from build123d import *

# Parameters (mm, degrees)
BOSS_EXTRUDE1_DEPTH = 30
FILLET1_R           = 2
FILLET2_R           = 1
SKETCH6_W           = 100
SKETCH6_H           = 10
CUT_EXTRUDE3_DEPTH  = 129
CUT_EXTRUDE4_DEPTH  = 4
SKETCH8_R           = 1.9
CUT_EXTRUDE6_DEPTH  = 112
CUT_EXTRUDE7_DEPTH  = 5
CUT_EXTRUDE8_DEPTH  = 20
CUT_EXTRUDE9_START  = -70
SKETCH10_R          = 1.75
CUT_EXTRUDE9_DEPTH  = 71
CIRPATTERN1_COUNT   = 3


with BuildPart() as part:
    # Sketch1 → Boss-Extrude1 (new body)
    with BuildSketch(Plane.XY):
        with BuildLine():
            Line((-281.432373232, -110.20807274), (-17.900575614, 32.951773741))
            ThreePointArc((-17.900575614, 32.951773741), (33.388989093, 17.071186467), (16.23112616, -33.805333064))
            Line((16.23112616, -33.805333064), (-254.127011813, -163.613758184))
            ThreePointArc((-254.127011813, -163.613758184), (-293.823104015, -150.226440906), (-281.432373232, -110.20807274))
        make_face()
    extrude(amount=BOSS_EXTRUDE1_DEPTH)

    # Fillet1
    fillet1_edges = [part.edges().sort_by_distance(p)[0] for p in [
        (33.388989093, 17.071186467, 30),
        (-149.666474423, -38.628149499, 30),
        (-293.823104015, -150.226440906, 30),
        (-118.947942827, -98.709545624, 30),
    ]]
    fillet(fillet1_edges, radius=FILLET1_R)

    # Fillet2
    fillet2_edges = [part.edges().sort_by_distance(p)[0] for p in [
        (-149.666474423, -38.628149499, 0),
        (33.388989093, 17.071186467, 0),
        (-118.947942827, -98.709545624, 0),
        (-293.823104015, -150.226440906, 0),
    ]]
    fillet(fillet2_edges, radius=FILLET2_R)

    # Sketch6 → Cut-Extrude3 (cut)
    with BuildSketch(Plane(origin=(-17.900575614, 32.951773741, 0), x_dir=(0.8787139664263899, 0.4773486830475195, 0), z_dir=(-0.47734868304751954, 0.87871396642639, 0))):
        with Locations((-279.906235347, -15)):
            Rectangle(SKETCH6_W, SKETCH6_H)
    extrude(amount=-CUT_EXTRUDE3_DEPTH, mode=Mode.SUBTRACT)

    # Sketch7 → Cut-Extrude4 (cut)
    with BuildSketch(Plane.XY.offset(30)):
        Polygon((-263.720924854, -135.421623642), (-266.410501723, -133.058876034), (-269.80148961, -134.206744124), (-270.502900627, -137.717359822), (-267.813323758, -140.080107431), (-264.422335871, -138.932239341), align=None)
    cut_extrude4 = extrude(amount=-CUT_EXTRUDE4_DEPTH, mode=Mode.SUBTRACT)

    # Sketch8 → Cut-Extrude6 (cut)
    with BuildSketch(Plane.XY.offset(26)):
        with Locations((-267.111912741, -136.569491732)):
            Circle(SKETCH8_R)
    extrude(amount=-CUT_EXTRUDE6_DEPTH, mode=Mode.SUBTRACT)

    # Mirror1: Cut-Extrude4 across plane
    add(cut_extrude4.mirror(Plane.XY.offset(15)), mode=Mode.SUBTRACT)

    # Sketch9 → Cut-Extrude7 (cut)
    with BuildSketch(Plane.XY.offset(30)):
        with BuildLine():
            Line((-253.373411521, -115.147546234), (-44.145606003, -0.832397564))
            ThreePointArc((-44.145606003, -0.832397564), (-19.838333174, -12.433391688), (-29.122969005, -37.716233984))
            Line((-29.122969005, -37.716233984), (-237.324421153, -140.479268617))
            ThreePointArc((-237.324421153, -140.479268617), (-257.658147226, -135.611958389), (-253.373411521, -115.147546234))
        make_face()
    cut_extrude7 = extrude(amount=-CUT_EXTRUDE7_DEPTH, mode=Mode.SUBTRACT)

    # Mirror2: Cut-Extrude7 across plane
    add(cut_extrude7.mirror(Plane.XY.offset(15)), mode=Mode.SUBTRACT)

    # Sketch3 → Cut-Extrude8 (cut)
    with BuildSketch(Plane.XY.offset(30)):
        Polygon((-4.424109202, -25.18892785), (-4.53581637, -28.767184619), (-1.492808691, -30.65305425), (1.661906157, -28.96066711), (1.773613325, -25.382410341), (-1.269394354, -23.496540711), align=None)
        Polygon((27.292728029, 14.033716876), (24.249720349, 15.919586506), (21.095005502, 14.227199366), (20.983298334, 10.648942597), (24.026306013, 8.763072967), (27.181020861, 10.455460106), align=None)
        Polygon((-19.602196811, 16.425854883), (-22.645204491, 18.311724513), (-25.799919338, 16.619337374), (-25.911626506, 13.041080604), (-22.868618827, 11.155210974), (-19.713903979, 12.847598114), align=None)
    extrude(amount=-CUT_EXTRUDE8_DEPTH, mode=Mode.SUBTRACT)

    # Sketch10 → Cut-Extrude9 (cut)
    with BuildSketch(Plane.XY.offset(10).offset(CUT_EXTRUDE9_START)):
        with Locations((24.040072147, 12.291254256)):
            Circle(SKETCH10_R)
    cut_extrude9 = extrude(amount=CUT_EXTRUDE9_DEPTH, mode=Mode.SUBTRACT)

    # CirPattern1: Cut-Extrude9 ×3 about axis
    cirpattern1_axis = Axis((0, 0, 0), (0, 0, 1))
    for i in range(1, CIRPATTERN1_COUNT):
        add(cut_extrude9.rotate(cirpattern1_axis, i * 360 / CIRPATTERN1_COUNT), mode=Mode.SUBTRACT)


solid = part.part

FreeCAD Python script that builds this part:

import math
import FreeCAD as App
import Part
import Sketcher
Q = App.Units.Quantity


def edges_at(feature, points):
    """Names of the edges that pass closest to the given points."""
    edges = feature.Shape.Edges
    near = lambda p: min(range(len(edges)), key=lambda i: edges[i].distToShape(Part.Vertex(*p))[0])
    return sorted({f"Edge{near(p) + 1}" for p in points})

doc = App.newDocument("Part")
body = doc.addObject("PartDesign::Body", "Body")

sketch1 = body.newObject("Sketcher::SketchObject", "Sketch")
sketch1.AttachmentSupport = (doc.getObject("XY_Plane"), [""])
sketch1.MapMode = "FlatFace"
sketch1.addGeometry([
    Part.LineSegment(App.Vector(-17.900576, 32.951774, 0), App.Vector(-281.432373, -110.208073, 0)),
    Part.ArcOfCircle(Part.Circle(App.Vector(-267.111913, -136.569492, 0), App.Vector(0, 0, 1), 30), math.radians(118.512383), math.radians(295.647296)),
    Part.LineSegment(App.Vector(-254.127012, -163.613758, 0), App.Vector(16.231126, -33.805333, 0)),
    Part.ArcOfCircle(Part.Circle(App.Vector(0, 0, 0), App.Vector(0, 0, 1), 37.5), math.radians(-64.352704), math.radians(118.512383)),
], False)
sketch1.addConstraint([
    Sketcher.Constraint("Tangent", 0, 2, 1, 1),
    Sketcher.Constraint("Tangent", 1, 2, 2, 1),
    Sketcher.Constraint("Tangent", 2, 2, 3, 1),
    Sketcher.Constraint("Tangent", 3, 2, 0, 1),
    Sketcher.Constraint("Coincident", 3, 3, -1, 1),
    Sketcher.Constraint("Radius", 1, Q("30 mm")),
    Sketcher.Constraint("Radius", 3, Q("37.5 mm")),
    Sketcher.Constraint("DistanceX", 0, 2, 2, 2, Q("297.663499 mm")),
    Sketcher.Constraint("DistanceX", 3, 2, 2, 2, Q("34.131702 mm")),
])
pad1 = body.newObject("PartDesign::Pad", "Pad")
pad1.Profile = sketch1
pad1.Length = 30
doc.recompute()

fillet = body.newObject("PartDesign::Fillet", "Fillet")
fillet.Base = (pad1, edges_at(pad1, [
    (33.389, 17.071, 30),
    (-149.666, -38.628, 30),
    (-293.823, -150.226, 30),
    (-118.948, -98.71, 30),
]))
fillet.Radius = 2
doc.recompute()

fillet2 = body.newObject("PartDesign::Fillet", "Fillet001")
fillet2.Base = (fillet, edges_at(fillet, [
    (-149.666, -38.628, 0),
    (33.389, 17.071, 0),
    (-118.948, -98.71, 0),
    (-293.823, -150.226, 0),
]))
fillet2.Radius = 1

sketch2 = body.newObject("Sketcher::SketchObject", "Sketch001")
sketch2.Placement = App.Placement(App.Vector(-17.900576, 32.951774, 0), App.Rotation(App.Vector(0.878713966, 0.477348683, 0), App.Vector(0, 0, -0.999999999), App.Vector(-0.477348683, 0.878713966, 0), "ZXY"))
sketch2.addGeometry([
    Part.LineSegment(App.Vector(-329.906235, -10, 0), App.Vector(-329.906235, -20, 0)),
    Part.LineSegment(App.Vector(-329.906235, -20, 0), App.Vector(-229.906235, -20, 0)),
    Part.LineSegment(App.Vector(-229.906235, -20, 0), App.Vector(-229.906235, -10, 0)),
    Part.LineSegment(App.Vector(-229.906235, -10, 0), App.Vector(-329.906235, -10, 0)),
], False)
sketch2.addConstraint([
    Sketcher.Constraint("Coincident", 0, 2, 1, 1),
    Sketcher.Constraint("Coincident", 1, 2, 2, 1),
    Sketcher.Constraint("Coincident", 2, 2, 3, 1),
    Sketcher.Constraint("Coincident", 3, 2, 0, 1),
    Sketcher.Constraint("Vertical", 0),
    Sketcher.Constraint("Horizontal", 1),
    Sketcher.Constraint("Vertical", 2),
    Sketcher.Constraint("Horizontal", 3),
    Sketcher.Constraint("DistanceX", 1, 1, 1, 2, Q("100 mm")),
    Sketcher.Constraint("DistanceY", 0, 2, 0, 1, Q("10 mm")),
    Sketcher.Constraint("DistanceY", 0, 2, -1, 1, Q("20 mm")),
    Sketcher.Constraint("DistanceX", 0, 2, -1, 1, Q("329.906235 mm")),
])
pocket1 = body.newObject("PartDesign::Pocket", "Pocket")
pocket1.Profile = sketch2
pocket1.Length = 129

sketch3 = body.newObject("Sketcher::SketchObject", "Sketch002")
sketch3.AttachmentSupport = (doc.getObject("XY_Plane"), [""])
sketch3.MapMode = "FlatFace"
sketch3.AttachmentOffset = App.Placement(App.Vector(0, 0, 30), App.Rotation())
sketch3.addGeometry([
    Part.LineSegment(App.Vector(-263.720925, -135.421624, 0), App.Vector(-266.410502, -133.058876, 0)),
    Part.LineSegment(App.Vector(-266.410502, -133.058876, 0), App.Vector(-269.80149, -134.206744, 0)),
    Part.LineSegment(App.Vector(-269.80149, -134.206744, 0), App.Vector(-270.502901, -137.71736, 0)),
    Part.LineSegment(App.Vector(-270.502901, -137.71736, 0), App.Vector(-267.813324, -140.080107, 0)),
    Part.LineSegment(App.Vector(-267.813324, -140.080107, 0), App.Vector(-264.422336, -138.932239, 0)),
    Part.LineSegment(App.Vector(-264.422336, -138.932239, 0), App.Vector(-263.720925, -135.421624, 0)),
], False)
sketch3.addConstraint([
    Sketcher.Constraint("Coincident", 0, 2, 1, 1),
    Sketcher.Constraint("Coincident", 1, 2, 2, 1),
    Sketcher.Constraint("Coincident", 2, 2, 3, 1),
    Sketcher.Constraint("Coincident", 3, 2, 4, 1),
    Sketcher.Constraint("Coincident", 4, 2, 5, 1),
    Sketcher.Constraint("Coincident", 5, 2, 0, 1),
    Sketcher.Constraint("Parallel", 0, 3),
    Sketcher.Constraint("Parallel", 1, 4),
    Sketcher.Constraint("Parallel", 2, 5),
    Sketcher.Constraint("Equal", 0, 1),
    Sketcher.Constraint("Equal", 1, 2),
    Sketcher.Constraint("Equal", 2, 3),
    Sketcher.Constraint("Distance", 0, Q("3.58 mm")),
    Sketcher.Constraint("DistanceX", 0, 2, -1, 1, Q("266.410502 mm")),
    Sketcher.Constraint("DistanceX", 2, 2, -1, 1, Q("270.502901 mm")),
    Sketcher.Constraint("DistanceX", 1, 2, -1, 1, Q("269.80149 mm")),
    Sketcher.Constraint("DistanceY", 2, 2, -1, 1, Q("137.71736 mm")),
    Sketcher.Constraint("DistanceY", 4, 2, -1, 1, Q("138.932239 mm")),
])
pocket2 = body.newObject("PartDesign::Pocket", "Pocket001")
pocket2.Profile = sketch3
pocket2.Length = 4

sketch4 = body.newObject("Sketcher::SketchObject", "Sketch003")
sketch4.AttachmentSupport = (doc.getObject("XY_Plane"), [""])
sketch4.MapMode = "FlatFace"
sketch4.AttachmentOffset = App.Placement(App.Vector(0, 0, 26), App.Rotation())
sketch4.addGeometry(Part.Circle(App.Vector(-267.111913, -136.569492, 0), App.Vector(0, 0, 1), 1.9), False)
sketch4.addConstraint([
    Sketcher.Constraint("Diameter", 0, Q("3.8 mm")),
    Sketcher.Constraint("DistanceY", 0, 3, -1, 1, Q("136.569492 mm")),
    Sketcher.Constraint("DistanceX", 0, 3, -1, 1, Q("267.111913 mm")),
])
pocket3 = body.newObject("PartDesign::Pocket", "Pocket002")
pocket3.Profile = sketch4
pocket3.Length = 112
doc.recompute()

datumplane = body.newObject("PartDesign::Plane", "DatumPlane")
datumplane.AttachmentSupport = (doc.getObject("XY_Plane"), [""])
datumplane.MapMode = "FlatFace"
datumplane.AttachmentOffset = App.Placement(App.Vector(0, 0, 15), App.Rotation())
mirrored = body.newObject("PartDesign::Mirrored", "Mirrored")
mirrored.Originals = [pocket2]
mirrored.MirrorPlane = (datumplane, [""])
body.Tip = mirrored

sketch5 = body.newObject("Sketcher::SketchObject", "Sketch004")
sketch5.AttachmentSupport = (doc.getObject("XY_Plane"), [""])
sketch5.MapMode = "FlatFace"
sketch5.AttachmentOffset = App.Placement(App.Vector(0, 0, 30), App.Rotation())
sketch5.addGeometry([
    Part.LineSegment(App.Vector(-44.145606, -0.832398, 0), App.Vector(-253.373412, -115.147546, 0)),
    Part.ArcOfCircle(Part.Circle(App.Vector(-244.98712, -127.58419, 0), App.Vector(0, 0, 1), 15), math.radians(123.99262), math.radians(300.720236)),
    Part.LineSegment(App.Vector(-237.324421, -140.479269, 0), App.Vector(-29.122969, -37.716234, 0)),
    Part.ArcOfCircle(Part.Circle(App.Vector(-38.360902, -19.977559, 0), App.Vector(0, 0, 1), 20), math.radians(-62.490438), math.radians(106.812175)),
], False)
sketch5.addConstraint([
    Sketcher.Constraint("Coincident", 0, 2, 1, 1),
    Sketcher.Constraint("Coincident", 1, 2, 2, 1),
    Sketcher.Constraint("Coincident", 2, 2, 3, 1),
    Sketcher.Constraint("Coincident", 3, 2, 0, 1),
    Sketcher.Constraint("Radius", 1, Q("15 mm")),
    Sketcher.Constraint("Radius", 3, Q("20 mm")),
    Sketcher.Constraint("DistanceX", 3, 3, -1, 1, Q("38.360902 mm")),
    Sketcher.Constraint("DistanceX", 1, 3, 1, 2, Q("7.662699 mm")),
    Sketcher.Constraint("Distance", 2, Q("232.181149 mm")),
    Sketcher.Constraint("DistanceX", 1, 3, -1, 1, Q("244.98712 mm")),
    Sketcher.Constraint("DistanceY", 1, 3, -1, 1, Q("127.58419 mm")),
    Sketcher.Constraint("DistanceY", 3, 3, -1, 1, Q("19.977559 mm")),
    Sketcher.Constraint("DistanceX", 0, 2, -1, 1, Q("253.373412 mm")),
    Sketcher.Constraint("DistanceY", 3, 3, 3, 2, Q("19.145161 mm")),
])
pocket4 = body.newObject("PartDesign::Pocket", "Pocket003")
pocket4.Profile = sketch5
pocket4.Length = 5
doc.recompute()

datumplane2 = body.newObject("PartDesign::Plane", "DatumPlane001")
datumplane2.AttachmentSupport = (doc.getObject("XY_Plane"), [""])
datumplane2.MapMode = "FlatFace"
datumplane2.AttachmentOffset = App.Placement(App.Vector(0, 0, 15), App.Rotation())
mirrored2 = body.newObject("PartDesign::Mirrored", "Mirrored001")
mirrored2.Originals = [pocket4]
mirrored2.MirrorPlane = (datumplane2, [""])
body.Tip = mirrored2

sketch6 = body.newObject("Sketcher::SketchObject", "Sketch005")
sketch6.AttachmentSupport = (doc.getObject("XY_Plane"), [""])
sketch6.MapMode = "FlatFace"
sketch6.AttachmentOffset = App.Placement(App.Vector(0, 0, 30), App.Rotation())
sketch6.addGeometry([
    Part.LineSegment(App.Vector(-4.424109, -25.188928, 0), App.Vector(-4.535816, -28.767185, 0)),
    Part.LineSegment(App.Vector(-4.535816, -28.767185, 0), App.Vector(-1.492809, -30.653054, 0)),
    Part.LineSegment(App.Vector(-1.492809, -30.653054, 0), App.Vector(1.661906, -28.960667, 0)),
    Part.LineSegment(App.Vector(1.661906, -28.960667, 0), App.Vector(1.773613, -25.38241, 0)),
    Part.LineSegment(App.Vector(1.773613, -25.38241, 0), App.Vector(-1.269394, -23.496541, 0)),
    Part.LineSegment(App.Vector(-1.269394, -23.496541, 0), App.Vector(-4.424109, -25.188928, 0)),
    Part.LineSegment(App.Vector(27.292728, 14.033717, 0), App.Vector(24.24972, 15.919587, 0)),
    Part.LineSegment(App.Vector(24.24972, 15.919587, 0), App.Vector(21.095006, 14.227199, 0)),
    Part.LineSegment(App.Vector(21.095006, 14.227199, 0), App.Vector(20.983298, 10.648943, 0)),
    Part.LineSegment(App.Vector(20.983298, 10.648943, 0), App.Vector(24.026306, 8.763073, 0)),
    Part.LineSegment(App.Vector(24.026306, 8.763073, 0), App.Vector(27.181021, 10.45546, 0)),
    Part.LineSegment(App.Vector(27.181021, 10.45546, 0), App.Vector(27.292728, 14.033717, 0)),
    Part.LineSegment(App.Vector(-19.602197, 16.425855, 0), App.Vector(-22.645204, 18.311725, 0)),
    Part.LineSegment(App.Vector(-22.645204, 18.311725, 0), App.Vector(-25.799919, 16.619337, 0)),
    Part.LineSegment(App.Vector(-25.799919, 16.619337, 0), App.Vector(-25.911627, 13.041081, 0)),
    Part.LineSegment(App.Vector(-25.911627, 13.041081, 0), App.Vector(-22.868619, 11.155211, 0)),
    Part.LineSegment(App.Vector(-22.868619, 11.155211, 0), App.Vector(-19.713904, 12.847598, 0)),
    Part.LineSegment(App.Vector(-19.713904, 12.847598, 0), App.Vector(-19.602197, 16.425855, 0)),
], False)
sketch6.addConstraint([
    Sketcher.Constraint("Coincident", 0, 2, 1, 1),
    Sketcher.Constraint("Coincident", 1, 2, 2, 1),
    Sketcher.Constraint("Coincident", 2, 2, 3, 1),
    Sketcher.Constraint("Coincident", 3, 2, 4, 1),
    Sketcher.Constraint("Coincident", 4, 2, 5, 1),
    Sketcher.Constraint("Coincident", 5, 2, 0, 1),
    Sketcher.Constraint("Coincident", 6, 2, 7, 1),
    Sketcher.Constraint("Coincident", 7, 2, 8, 1),
    Sketcher.Constraint("Coincident", 8, 2, 9, 1),
    Sketcher.Constraint("Coincident", 9, 2, 10, 1),
    Sketcher.Constraint("Coincident", 10, 2, 11, 1),
    Sketcher.Constraint("Coincident", 11, 2, 6, 1),
    Sketcher.Constraint("Coincident", 12, 2, 13, 1),
    Sketcher.Constraint("Coincident", 13, 2, 14, 1),
    Sketcher.Constraint("Coincident", 14, 2, 15, 1),
    Sketcher.Constraint("Coincident", 15, 2, 16, 1),
    Sketcher.Constraint("Coincident", 16, 2, 17, 1),
    Sketcher.Constraint("Coincident", 17, 2, 12, 1),
    Sketcher.Constraint("Parallel", 0, 3),
    Sketcher.Constraint("Parallel", 1, 4),
    Sketcher.Constraint("Parallel", 2, 5),
    Sketcher.Constraint("Parallel", 4, 6),
    Sketcher.Constraint("Parallel", 5, 7),
    Sketcher.Constraint("Parallel", 3, 8),
    Sketcher.Constraint("Parallel", 6, 9),
    Sketcher.Constraint("Parallel", 7, 10),
    Sketcher.Constraint("Parallel", 8, 11),
    Sketcher.Constraint("Parallel", 9, 12),
    Sketcher.Constraint("Parallel", 10, 13),
    Sketcher.Constraint("Parallel", 11, 14),
    Sketcher.Constraint("Parallel", 12, 15),
    Sketcher.Constraint("Parallel", 13, 16),
    Sketcher.Constraint("Parallel", 14, 17),
    Sketcher.Constraint("Equal", 0, 1),
    Sketcher.Constraint("Equal", 1, 2),
    Sketcher.Constraint("Equal", 2, 3),
    Sketcher.Constraint("Equal", 5, 6),
    Sketcher.Constraint("Equal", 6, 7),
    Sketcher.Constraint("Equal", 7, 8),
    Sketcher.Constraint("Equal", 8, 9),
    Sketcher.Constraint("Equal", 11, 12),
    Sketcher.Constraint("Equal", 12, 13),
    Sketcher.Constraint("Equal", 13, 14),
    Sketcher.Constraint("Equal", 14, 15),
    Sketcher.Constraint("Distance", 0, Q("3.58 mm")),
    Sketcher.Constraint("DistanceY", -1, 1, 7, 2, Q("14.227199 mm")),
    Sketcher.Constraint("DistanceX", -1, 1, 8, 2, Q("20.983298 mm")),
    Sketcher.Constraint("DistanceY", -1, 1, 16, 2, Q("12.847598 mm")),
    Sketcher.Constraint("DistanceX", 4, 2, 2, 2, Q("2.931301 mm")),
    Sketcher.Constraint("DistanceX", 4, 2, 7, 2, Q("22.3644 mm")),
    Sketcher.Constraint("DistanceX", 1, 2, -1, 1, Q("1.492809 mm")),
    Sketcher.Constraint("DistanceY", 3, 2, -1, 1, Q("25.38241 mm")),
    Sketcher.Constraint("DistanceY", 4, 2, -1, 1, Q("23.496541 mm")),
    Sketcher.Constraint("DistanceX", 13, 2, -1, 1, Q("25.799919 mm")),
])
pocket5 = body.newObject("PartDesign::Pocket", "Pocket004")
pocket5.Profile = sketch6
pocket5.Length = 20

sketch7 = body.newObject("Sketcher::SketchObject", "Sketch006")
sketch7.AttachmentSupport = (doc.getObject("XY_Plane"), [""])
sketch7.MapMode = "FlatFace"
sketch7.AttachmentOffset = App.Placement(App.Vector(0, 0, -60), App.Rotation())
sketch7.addGeometry(Part.Circle(App.Vector(24.040072, 12.291254, 0), App.Vector(0, 0, 1), 1.75), False)
sketch7.addConstraint([
    Sketcher.Constraint("Diameter", 0, Q("3.5 mm")),
    Sketcher.Constraint("DistanceX", -1, 1, 0, 3, Q("24.040072 mm")),
    Sketcher.Constraint("DistanceY", -1, 1, 0, 3, Q("12.291254 mm")),
])
pocket6 = body.newObject("PartDesign::Pocket", "Pocket005")
pocket6.Profile = sketch7
pocket6.Length = 71
pocket6.Reversed = True
doc.recompute()

polarpattern = body.newObject("PartDesign::PolarPattern", "PolarPattern")
polarpattern.Originals = [pocket6]
polarpattern.Axis = (doc.getObject("Z_Axis"), [""])
polarpattern.Angle = 360
polarpattern.Occurrences = 3
body.Tip = polarpattern

doc.recompute()
